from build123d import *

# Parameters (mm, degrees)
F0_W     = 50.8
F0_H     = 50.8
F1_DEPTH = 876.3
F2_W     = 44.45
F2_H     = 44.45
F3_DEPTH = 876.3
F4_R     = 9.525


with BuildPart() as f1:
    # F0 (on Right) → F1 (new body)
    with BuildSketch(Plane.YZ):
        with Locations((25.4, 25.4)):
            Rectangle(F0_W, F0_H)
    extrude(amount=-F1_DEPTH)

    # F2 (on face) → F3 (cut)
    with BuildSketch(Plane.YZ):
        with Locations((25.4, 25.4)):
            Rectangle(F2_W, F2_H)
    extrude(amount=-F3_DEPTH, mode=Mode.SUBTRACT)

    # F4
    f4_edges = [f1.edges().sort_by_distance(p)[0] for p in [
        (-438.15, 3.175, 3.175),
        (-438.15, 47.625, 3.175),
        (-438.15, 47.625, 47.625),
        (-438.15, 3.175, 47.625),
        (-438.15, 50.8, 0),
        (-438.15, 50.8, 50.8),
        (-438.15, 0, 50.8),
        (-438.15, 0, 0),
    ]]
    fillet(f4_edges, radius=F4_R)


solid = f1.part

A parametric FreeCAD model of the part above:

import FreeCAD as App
import Part
import Sketcher
from FreeCAD import Vector
Q = App.Units.Quantity


def edges_at(feature, points):
    """Names of the edges that pass closest to the given points."""
    edges = feature.Shape.Edges
    near = lambda p: min(range(len(edges)), key=lambda i: edges[i].distToShape(Part.Vertex(*p))[0])
    return sorted({f"Edge{near(p) + 1}" for p in points})


def add_polygon(sketch, points):
    """Adds a closed chain of lines whose ends are joined by coincident constraints."""
    first, n = sketch.GeometryCount, len(points)
    for a, b in zip(points, points[1:] + points[:1]):
        sketch.addGeometry(Part.LineSegment(App.Vector(*a, 0), App.Vector(*b, 0)), False)
    for i in range(n):
        sketch.addConstraint(Sketcher.Constraint("Coincident", first + i, 2, first + (i + 1) % n, 1))

doc = App.newDocument("Part")
body = doc.addObject("PartDesign::Body", "Body")

# Sketch on YZ plane
sketch1 = doc.addObject("Sketcher::SketchObject", "Sketch")
body.addObject(sketch1)
sketch1.AttachmentSupport = (doc.YZ_Plane, [""])
sketch1.MapMode = "FlatFace"
add_polygon(sketch1, [(0, 51), (0, 0), (51, 0), (51, 51)])  # lines 0-3
sketch1.addConstraint(Sketcher.Constraint("Vertical", 0))
sketch1.addConstraint(Sketcher.Constraint("Horizontal", 1))
sketch1.addConstraint(Sketcher.Constraint("Vertical", 2))
sketch1.addConstraint(Sketcher.Constraint("Horizontal", 3))
sketch1.addConstraint(Sketcher.Constraint("Coincident", 0, 2, -1, 1))
sketch1.addConstraint(Sketcher.Constraint("Equal", 3, 0))
sketch1.addConstraint(Sketcher.Constraint("DistanceX", 1, 1, 1, 2, Q("2 in")))
pad1 = doc.addObject("PartDesign::Pad", "Pad")
body.addObject(pad1)
pad1.Profile = sketch1
pad1.Length = Q("34.5 in")
pad1.Reversed = True

# Sketch on YZ plane
sketch2 = doc.addObject("Sketcher::SketchObject", "Sketch001")
body.addObject(sketch2)
sketch2.AttachmentSupport = (doc.YZ_Plane, [""])
sketch2.MapMode = "FlatFace"
add_polygon(sketch2, [(3, 48), (3, 3), (48, 3), (48, 48)])  # lines 0-3
sketch2.addConstraint(Sketcher.Constraint("Vertical", 0))
sketch2.addConstraint(Sketcher.Constraint("Horizontal", 1))
sketch2.addConstraint(Sketcher.Constraint("Vertical", 2))
sketch2.addConstraint(Sketcher.Constraint("Horizontal", 3))
sketch2.addConstraint(Sketcher.Constraint("Equal", 3, 0))
sketch2.addConstraint(Sketcher.Constraint("DistanceX", 1, 1, 1, 2, Q("1.75 in")))
sketch2.addConstraint(Sketcher.Constraint("DistanceX", -1, 1, 0, 2, Q("0.125 in")))
sketch2.addConstraint(Sketcher.Constraint("DistanceY", -1, 1, 0, 2, Q("0.125 in")))
pocket1 = doc.addObject("PartDesign::Pocket", "Pocket")
body.addObject(pocket1)
pocket1.Profile = sketch2
pocket1.Length = Q("34.5 in")
doc.recompute()

fillet = doc.addObject("PartDesign::Fillet", "Fillet")
body.addObject(fillet)
fillet.Base = (pocket1, edges_at(pocket1, [
    (-438.15, 3.175, 3.175),
    (-438.15, 47.625, 3.175),
    (-438.15, 47.625, 47.625),
    (-438.15, 3.175, 47.625),
    (-438.15, 50.8, 0),
    (-438.15, 50.8, 50.8),
    (-438.15, 0, 50.8),
    (-438.15, 0, 0),
]))
fillet.Radius = Q("0.375 in")

doc.recompute()
